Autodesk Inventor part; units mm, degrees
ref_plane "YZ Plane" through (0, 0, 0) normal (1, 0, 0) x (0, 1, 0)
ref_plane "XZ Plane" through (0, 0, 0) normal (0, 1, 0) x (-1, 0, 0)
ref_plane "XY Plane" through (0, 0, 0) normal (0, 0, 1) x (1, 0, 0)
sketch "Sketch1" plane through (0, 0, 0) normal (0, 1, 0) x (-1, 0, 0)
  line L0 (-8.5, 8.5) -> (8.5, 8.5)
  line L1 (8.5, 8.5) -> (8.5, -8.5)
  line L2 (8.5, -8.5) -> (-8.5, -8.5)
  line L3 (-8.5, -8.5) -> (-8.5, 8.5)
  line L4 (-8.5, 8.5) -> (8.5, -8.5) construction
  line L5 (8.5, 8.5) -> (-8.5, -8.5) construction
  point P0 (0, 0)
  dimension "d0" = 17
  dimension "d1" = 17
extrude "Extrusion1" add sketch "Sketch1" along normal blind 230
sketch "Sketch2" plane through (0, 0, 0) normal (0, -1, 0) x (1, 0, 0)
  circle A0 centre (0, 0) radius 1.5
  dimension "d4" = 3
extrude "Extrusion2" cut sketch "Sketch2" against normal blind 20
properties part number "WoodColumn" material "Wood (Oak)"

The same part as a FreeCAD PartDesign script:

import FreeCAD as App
import Part
import Sketcher
from FreeCAD import Vector
Q = App.Units.Quantity

doc = App.newDocument("Part")
body = doc.addObject("PartDesign::Body", "Body")

# Sketch on XZ plane
sketch1 = doc.addObject("Sketcher::SketchObject", "Sketch")
body.addObject(sketch1)
sketch1.AttachmentSupport = (doc.XZ_Plane, [""])
sketch1.MapMode = "FlatFace"
sketch1.addGeometry([
    Part.LineSegment(Vector(-8, 8, 0), Vector(8, 8, 0)),
    Part.LineSegment(Vector(8, 8, 0), Vector(8, -8, 0)),
    Part.LineSegment(Vector(8, -8, 0), Vector(-8, -8, 0)),
    Part.LineSegment(Vector(-8, -8, 0), Vector(-8, 8, 0)),
], False)
sketch1.addConstraint([
    Sketcher.Constraint("Coincident", 0, 2, 1, 1),
    Sketcher.Constraint("Coincident", 1, 2, 2, 1),
    Sketcher.Constraint("Coincident", 2, 2, 3, 1),
    Sketcher.Constraint("Coincident", 3, 2, 0, 1),
    Sketcher.Constraint("Horizontal", 0),
    Sketcher.Constraint("Vertical", 1),
    Sketcher.Constraint("Horizontal", 2),
    Sketcher.Constraint("Vertical", 3),
    Sketcher.Constraint("Symmetric", 0, 2, 2, 2, -1, 1),
    Sketcher.Constraint("Equal", 2, 1),
    Sketcher.Constraint("DistanceX", 0, 1, 0, 2, Q("17 mm")),
])
pad1 = doc.addObject("PartDesign::Pad", "Pad")
body.addObject(pad1)
pad1.Profile = sketch1
pad1.Length = 230
pad1.Reversed = True

# Sketch on XZ plane
sketch2 = doc.addObject("Sketcher::SketchObject", "Sketch001")
body.addObject(sketch2)
sketch2.AttachmentSupport = (doc.XZ_Plane, [""])
sketch2.MapMode = "FlatFace"
sketch2.addGeometry(Part.Circle(Vector(0, 0, 0), Vector(0, 0, 1), 1.5), False)
sketch2.addConstraint([
    Sketcher.Constraint("Coincident", 0, 3, -1, 1),
    Sketcher.Constraint("Diameter", 0, Q("3 mm")),
])
pocket1 = doc.addObject("PartDesign::Pocket", "Pocket")
body.addObject(pocket1)
pocket1.Profile = sketch2
pocket1.Length = 20

doc.recompute()
